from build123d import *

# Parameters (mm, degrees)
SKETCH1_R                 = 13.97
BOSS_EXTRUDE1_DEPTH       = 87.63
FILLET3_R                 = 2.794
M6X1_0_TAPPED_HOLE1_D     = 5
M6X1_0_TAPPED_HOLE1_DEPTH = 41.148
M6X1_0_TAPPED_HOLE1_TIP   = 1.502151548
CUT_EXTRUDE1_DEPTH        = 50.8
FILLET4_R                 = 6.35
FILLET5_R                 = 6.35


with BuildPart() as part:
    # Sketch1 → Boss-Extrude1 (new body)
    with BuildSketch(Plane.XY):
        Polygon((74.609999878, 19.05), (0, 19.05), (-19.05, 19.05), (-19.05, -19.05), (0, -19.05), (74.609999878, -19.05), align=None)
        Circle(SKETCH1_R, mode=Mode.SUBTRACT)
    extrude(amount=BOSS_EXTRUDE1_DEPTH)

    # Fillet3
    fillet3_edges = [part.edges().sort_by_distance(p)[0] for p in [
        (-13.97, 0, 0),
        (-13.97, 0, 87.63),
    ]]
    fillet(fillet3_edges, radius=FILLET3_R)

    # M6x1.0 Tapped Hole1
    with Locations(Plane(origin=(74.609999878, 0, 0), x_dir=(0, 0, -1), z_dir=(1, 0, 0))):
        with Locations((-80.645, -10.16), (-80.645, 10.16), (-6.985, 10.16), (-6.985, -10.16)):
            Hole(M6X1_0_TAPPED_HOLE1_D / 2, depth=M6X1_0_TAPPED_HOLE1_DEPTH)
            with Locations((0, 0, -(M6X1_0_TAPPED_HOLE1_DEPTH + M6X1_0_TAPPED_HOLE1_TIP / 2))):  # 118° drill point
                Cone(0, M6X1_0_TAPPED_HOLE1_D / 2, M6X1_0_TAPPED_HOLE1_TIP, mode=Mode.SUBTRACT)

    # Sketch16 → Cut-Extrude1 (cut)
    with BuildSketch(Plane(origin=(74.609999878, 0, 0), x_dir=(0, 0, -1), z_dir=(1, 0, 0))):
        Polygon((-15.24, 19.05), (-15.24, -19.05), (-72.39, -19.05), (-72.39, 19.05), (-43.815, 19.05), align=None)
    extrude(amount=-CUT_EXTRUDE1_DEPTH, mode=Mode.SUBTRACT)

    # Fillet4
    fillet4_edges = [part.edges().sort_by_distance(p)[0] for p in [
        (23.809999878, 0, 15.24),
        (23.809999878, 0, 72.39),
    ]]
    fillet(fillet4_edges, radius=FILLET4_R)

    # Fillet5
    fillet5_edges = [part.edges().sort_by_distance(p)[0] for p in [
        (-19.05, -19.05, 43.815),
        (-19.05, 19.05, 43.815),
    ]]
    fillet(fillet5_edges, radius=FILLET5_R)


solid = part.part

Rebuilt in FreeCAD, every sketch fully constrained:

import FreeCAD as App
import Part
import Sketcher
Q = App.Units.Quantity


def edges_at(feature, points):
    """Names of the edges that pass closest to the given points."""
    edges = feature.Shape.Edges
    near = lambda p: min(range(len(edges)), key=lambda i: edges[i].distToShape(Part.Vertex(*p))[0])
    return sorted({f"Edge{near(p) + 1}" for p in points})


def add_polygon(sketch, points):
    """Adds a closed chain of lines whose ends are joined by coincident constraints."""
    first, n = sketch.GeometryCount, len(points)
    for a, b in zip(points, points[1:] + points[:1]):
        sketch.addGeometry(Part.LineSegment(App.Vector(*a, 0), App.Vector(*b, 0)), False)
    for i in range(n):
        sketch.addConstraint(Sketcher.Constraint("Coincident", first + i, 2, first + (i + 1) % n, 1))

doc = App.newDocument("Part")
body = doc.addObject("PartDesign::Body", "Body")

# Sketch on XY plane
sketch1 = body.newObject("Sketcher::SketchObject", "Sketch")
sketch1.AttachmentSupport = (doc.getObject("XY_Plane"), [""])
sketch1.MapMode = "FlatFace"
add_polygon(sketch1, [(75, 19), (-19, 19), (-19, -19), (75, -19)])  # lines 0-3
sketch1.addGeometry(Part.Circle(App.Vector(0, 0, 0), App.Vector(0, 0, 1), 14), False)  # 4
sketch1.addConstraint(Sketcher.Constraint("Horizontal", 0))
sketch1.addConstraint(Sketcher.Constraint("Vertical", 1))
sketch1.addConstraint(Sketcher.Constraint("Horizontal", 2))
sketch1.addConstraint(Sketcher.Constraint("Vertical", 3))
sketch1.addConstraint(Sketcher.Constraint("Coincident", 4, 3, -1, 1))
sketch1.addConstraint(Sketcher.Constraint("Diameter", 4, Q("1.1 in")))
sketch1.addConstraint(Sketcher.Constraint("DistanceY", 1, 2, 1, 1, Q("1.5 in")))
sketch1.addConstraint(Sketcher.Constraint("DistanceX", 0, 2, -1, 1, Q("0.75 in")))
sketch1.addConstraint(Sketcher.Constraint("DistanceY", -1, 1, 0, 2, Q("0.75 in")))
sketch1.addConstraint(Sketcher.Constraint("DistanceX", 0, 2, 0, 1, 93.66))
pad1 = body.newObject("PartDesign::Pad", "Pad")
pad1.Profile = sketch1
pad1.Length = Q("3.45 in")
doc.recompute()

fillet = body.newObject("PartDesign::Fillet", "Fillet")
fillet.Base = (pad1, edges_at(pad1, [(-13.97, 0, 0), (-13.97, 0, 87.63)]))
fillet.Radius = Q("0.11 in")

# Sketch on YZ plane
sketch2 = body.newObject("Sketcher::SketchObject", "Sketch001")
sketch2.AttachmentSupport = (doc.getObject("YZ_Plane"), [""])
sketch2.MapMode = "FlatFace"
sketch2.AttachmentOffset = App.Placement(App.Vector(0, 0, 74.61), App.Rotation())
sketch2.addGeometry(Part.Circle(App.Vector(-10.2, 80.6, 0), App.Vector(0, 0, 1), 2.5), False)
sketch2.addGeometry(Part.Circle(App.Vector(10.2, 80.6, 0), App.Vector(0, 0, 1), 2.5), False)
sketch2.addGeometry(Part.Circle(App.Vector(10.2, 7, 0), App.Vector(0, 0, 1), 2.5), False)
sketch2.addGeometry(Part.Circle(App.Vector(-10.2, 7, 0), App.Vector(0, 0, 1), 2.5), False)
sketch2.addConstraint(Sketcher.Constraint("Equal", 0, 1))
sketch2.addConstraint(Sketcher.Constraint("Equal", 1, 2))
sketch2.addConstraint(Sketcher.Constraint("Equal", 2, 3))
sketch2.addConstraint(Sketcher.Constraint("Symmetric", 0, 3, 1, 3, -2))
sketch2.addConstraint(Sketcher.Constraint("Symmetric", 2, 3, 3, 3, -2))
sketch2.addConstraint(Sketcher.Constraint("Vertical", 1, 3, 2, 3))
sketch2.addConstraint(Sketcher.Constraint("DistanceX", 0, 3, -1, 1, Q("0.4 in")))
sketch2.addConstraint(Sketcher.Constraint("DistanceY", 2, 3, 1, 3, Q("2.9 in")))
sketch2.addConstraint(Sketcher.Constraint("Diameter", 0, 5.0))
sketch2.addConstraint(Sketcher.Constraint("DistanceY", -1, 1, 0, 3, Q("3.175 in")))
doc.recompute()
hole = body.newObject("PartDesign::Hole", "Hole")
hole.Profile = sketch2
hole.ThreadType = "None"
hole.Diameter = 5
hole.DepthType = "Dimension"
hole.Depth = Q("1.62 in")
hole.DrillPoint = "Angled"
hole.DrillPointAngle = 118

# Sketch on YZ plane
sketch3 = body.newObject("Sketcher::SketchObject", "Sketch002")
sketch3.AttachmentSupport = (doc.getObject("YZ_Plane"), [""])
sketch3.MapMode = "FlatFace"
sketch3.AttachmentOffset = App.Placement(App.Vector(0, 0, 74.61), App.Rotation())
add_polygon(sketch3, [(-19, 15), (19, 15), (19, 72), (-19, 72)])  # lines 0-3
sketch3.addConstraint(Sketcher.Constraint("Horizontal", 0))
sketch3.addConstraint(Sketcher.Constraint("Vertical", 1))
sketch3.addConstraint(Sketcher.Constraint("Horizontal", 2))
sketch3.addConstraint(Sketcher.Constraint("Vertical", 3))
sketch3.addConstraint(Sketcher.Constraint("DistanceX", 0, 1, 0, 2, Q("1.5 in")))
sketch3.addConstraint(Sketcher.Constraint("DistanceY", 1, 1, 1, 2, Q("2.25 in")))
sketch3.addConstraint(Sketcher.Constraint("DistanceY", -1, 1, 0, 2, Q("0.6 in")))
sketch3.addConstraint(Sketcher.Constraint("DistanceX", -1, 1, 0, 2, Q("0.75 in")))
pocket1 = body.newObject("PartDesign::Pocket", "Pocket")
pocket1.Profile = sketch3
pocket1.Length = Q("2 in")
doc.recompute()

fillet2 = body.newObject("PartDesign::Fillet", "Fillet001")
fillet2.Base = (pocket1, edges_at(pocket1, [(23.81, 0, 15.24), (23.81, 0, 72.39)]))
fillet2.Radius = Q("0.25 in")
doc.recompute()

fillet3 = body.newObject("PartDesign::Fillet", "Fillet002")
fillet3.Base = (fillet2, edges_at(fillet2, [(-19.05, -19.05, 43.815), (-19.05, 19.05, 43.815)]))
fillet3.Radius = Q("0.25 in")

doc.recompute()
